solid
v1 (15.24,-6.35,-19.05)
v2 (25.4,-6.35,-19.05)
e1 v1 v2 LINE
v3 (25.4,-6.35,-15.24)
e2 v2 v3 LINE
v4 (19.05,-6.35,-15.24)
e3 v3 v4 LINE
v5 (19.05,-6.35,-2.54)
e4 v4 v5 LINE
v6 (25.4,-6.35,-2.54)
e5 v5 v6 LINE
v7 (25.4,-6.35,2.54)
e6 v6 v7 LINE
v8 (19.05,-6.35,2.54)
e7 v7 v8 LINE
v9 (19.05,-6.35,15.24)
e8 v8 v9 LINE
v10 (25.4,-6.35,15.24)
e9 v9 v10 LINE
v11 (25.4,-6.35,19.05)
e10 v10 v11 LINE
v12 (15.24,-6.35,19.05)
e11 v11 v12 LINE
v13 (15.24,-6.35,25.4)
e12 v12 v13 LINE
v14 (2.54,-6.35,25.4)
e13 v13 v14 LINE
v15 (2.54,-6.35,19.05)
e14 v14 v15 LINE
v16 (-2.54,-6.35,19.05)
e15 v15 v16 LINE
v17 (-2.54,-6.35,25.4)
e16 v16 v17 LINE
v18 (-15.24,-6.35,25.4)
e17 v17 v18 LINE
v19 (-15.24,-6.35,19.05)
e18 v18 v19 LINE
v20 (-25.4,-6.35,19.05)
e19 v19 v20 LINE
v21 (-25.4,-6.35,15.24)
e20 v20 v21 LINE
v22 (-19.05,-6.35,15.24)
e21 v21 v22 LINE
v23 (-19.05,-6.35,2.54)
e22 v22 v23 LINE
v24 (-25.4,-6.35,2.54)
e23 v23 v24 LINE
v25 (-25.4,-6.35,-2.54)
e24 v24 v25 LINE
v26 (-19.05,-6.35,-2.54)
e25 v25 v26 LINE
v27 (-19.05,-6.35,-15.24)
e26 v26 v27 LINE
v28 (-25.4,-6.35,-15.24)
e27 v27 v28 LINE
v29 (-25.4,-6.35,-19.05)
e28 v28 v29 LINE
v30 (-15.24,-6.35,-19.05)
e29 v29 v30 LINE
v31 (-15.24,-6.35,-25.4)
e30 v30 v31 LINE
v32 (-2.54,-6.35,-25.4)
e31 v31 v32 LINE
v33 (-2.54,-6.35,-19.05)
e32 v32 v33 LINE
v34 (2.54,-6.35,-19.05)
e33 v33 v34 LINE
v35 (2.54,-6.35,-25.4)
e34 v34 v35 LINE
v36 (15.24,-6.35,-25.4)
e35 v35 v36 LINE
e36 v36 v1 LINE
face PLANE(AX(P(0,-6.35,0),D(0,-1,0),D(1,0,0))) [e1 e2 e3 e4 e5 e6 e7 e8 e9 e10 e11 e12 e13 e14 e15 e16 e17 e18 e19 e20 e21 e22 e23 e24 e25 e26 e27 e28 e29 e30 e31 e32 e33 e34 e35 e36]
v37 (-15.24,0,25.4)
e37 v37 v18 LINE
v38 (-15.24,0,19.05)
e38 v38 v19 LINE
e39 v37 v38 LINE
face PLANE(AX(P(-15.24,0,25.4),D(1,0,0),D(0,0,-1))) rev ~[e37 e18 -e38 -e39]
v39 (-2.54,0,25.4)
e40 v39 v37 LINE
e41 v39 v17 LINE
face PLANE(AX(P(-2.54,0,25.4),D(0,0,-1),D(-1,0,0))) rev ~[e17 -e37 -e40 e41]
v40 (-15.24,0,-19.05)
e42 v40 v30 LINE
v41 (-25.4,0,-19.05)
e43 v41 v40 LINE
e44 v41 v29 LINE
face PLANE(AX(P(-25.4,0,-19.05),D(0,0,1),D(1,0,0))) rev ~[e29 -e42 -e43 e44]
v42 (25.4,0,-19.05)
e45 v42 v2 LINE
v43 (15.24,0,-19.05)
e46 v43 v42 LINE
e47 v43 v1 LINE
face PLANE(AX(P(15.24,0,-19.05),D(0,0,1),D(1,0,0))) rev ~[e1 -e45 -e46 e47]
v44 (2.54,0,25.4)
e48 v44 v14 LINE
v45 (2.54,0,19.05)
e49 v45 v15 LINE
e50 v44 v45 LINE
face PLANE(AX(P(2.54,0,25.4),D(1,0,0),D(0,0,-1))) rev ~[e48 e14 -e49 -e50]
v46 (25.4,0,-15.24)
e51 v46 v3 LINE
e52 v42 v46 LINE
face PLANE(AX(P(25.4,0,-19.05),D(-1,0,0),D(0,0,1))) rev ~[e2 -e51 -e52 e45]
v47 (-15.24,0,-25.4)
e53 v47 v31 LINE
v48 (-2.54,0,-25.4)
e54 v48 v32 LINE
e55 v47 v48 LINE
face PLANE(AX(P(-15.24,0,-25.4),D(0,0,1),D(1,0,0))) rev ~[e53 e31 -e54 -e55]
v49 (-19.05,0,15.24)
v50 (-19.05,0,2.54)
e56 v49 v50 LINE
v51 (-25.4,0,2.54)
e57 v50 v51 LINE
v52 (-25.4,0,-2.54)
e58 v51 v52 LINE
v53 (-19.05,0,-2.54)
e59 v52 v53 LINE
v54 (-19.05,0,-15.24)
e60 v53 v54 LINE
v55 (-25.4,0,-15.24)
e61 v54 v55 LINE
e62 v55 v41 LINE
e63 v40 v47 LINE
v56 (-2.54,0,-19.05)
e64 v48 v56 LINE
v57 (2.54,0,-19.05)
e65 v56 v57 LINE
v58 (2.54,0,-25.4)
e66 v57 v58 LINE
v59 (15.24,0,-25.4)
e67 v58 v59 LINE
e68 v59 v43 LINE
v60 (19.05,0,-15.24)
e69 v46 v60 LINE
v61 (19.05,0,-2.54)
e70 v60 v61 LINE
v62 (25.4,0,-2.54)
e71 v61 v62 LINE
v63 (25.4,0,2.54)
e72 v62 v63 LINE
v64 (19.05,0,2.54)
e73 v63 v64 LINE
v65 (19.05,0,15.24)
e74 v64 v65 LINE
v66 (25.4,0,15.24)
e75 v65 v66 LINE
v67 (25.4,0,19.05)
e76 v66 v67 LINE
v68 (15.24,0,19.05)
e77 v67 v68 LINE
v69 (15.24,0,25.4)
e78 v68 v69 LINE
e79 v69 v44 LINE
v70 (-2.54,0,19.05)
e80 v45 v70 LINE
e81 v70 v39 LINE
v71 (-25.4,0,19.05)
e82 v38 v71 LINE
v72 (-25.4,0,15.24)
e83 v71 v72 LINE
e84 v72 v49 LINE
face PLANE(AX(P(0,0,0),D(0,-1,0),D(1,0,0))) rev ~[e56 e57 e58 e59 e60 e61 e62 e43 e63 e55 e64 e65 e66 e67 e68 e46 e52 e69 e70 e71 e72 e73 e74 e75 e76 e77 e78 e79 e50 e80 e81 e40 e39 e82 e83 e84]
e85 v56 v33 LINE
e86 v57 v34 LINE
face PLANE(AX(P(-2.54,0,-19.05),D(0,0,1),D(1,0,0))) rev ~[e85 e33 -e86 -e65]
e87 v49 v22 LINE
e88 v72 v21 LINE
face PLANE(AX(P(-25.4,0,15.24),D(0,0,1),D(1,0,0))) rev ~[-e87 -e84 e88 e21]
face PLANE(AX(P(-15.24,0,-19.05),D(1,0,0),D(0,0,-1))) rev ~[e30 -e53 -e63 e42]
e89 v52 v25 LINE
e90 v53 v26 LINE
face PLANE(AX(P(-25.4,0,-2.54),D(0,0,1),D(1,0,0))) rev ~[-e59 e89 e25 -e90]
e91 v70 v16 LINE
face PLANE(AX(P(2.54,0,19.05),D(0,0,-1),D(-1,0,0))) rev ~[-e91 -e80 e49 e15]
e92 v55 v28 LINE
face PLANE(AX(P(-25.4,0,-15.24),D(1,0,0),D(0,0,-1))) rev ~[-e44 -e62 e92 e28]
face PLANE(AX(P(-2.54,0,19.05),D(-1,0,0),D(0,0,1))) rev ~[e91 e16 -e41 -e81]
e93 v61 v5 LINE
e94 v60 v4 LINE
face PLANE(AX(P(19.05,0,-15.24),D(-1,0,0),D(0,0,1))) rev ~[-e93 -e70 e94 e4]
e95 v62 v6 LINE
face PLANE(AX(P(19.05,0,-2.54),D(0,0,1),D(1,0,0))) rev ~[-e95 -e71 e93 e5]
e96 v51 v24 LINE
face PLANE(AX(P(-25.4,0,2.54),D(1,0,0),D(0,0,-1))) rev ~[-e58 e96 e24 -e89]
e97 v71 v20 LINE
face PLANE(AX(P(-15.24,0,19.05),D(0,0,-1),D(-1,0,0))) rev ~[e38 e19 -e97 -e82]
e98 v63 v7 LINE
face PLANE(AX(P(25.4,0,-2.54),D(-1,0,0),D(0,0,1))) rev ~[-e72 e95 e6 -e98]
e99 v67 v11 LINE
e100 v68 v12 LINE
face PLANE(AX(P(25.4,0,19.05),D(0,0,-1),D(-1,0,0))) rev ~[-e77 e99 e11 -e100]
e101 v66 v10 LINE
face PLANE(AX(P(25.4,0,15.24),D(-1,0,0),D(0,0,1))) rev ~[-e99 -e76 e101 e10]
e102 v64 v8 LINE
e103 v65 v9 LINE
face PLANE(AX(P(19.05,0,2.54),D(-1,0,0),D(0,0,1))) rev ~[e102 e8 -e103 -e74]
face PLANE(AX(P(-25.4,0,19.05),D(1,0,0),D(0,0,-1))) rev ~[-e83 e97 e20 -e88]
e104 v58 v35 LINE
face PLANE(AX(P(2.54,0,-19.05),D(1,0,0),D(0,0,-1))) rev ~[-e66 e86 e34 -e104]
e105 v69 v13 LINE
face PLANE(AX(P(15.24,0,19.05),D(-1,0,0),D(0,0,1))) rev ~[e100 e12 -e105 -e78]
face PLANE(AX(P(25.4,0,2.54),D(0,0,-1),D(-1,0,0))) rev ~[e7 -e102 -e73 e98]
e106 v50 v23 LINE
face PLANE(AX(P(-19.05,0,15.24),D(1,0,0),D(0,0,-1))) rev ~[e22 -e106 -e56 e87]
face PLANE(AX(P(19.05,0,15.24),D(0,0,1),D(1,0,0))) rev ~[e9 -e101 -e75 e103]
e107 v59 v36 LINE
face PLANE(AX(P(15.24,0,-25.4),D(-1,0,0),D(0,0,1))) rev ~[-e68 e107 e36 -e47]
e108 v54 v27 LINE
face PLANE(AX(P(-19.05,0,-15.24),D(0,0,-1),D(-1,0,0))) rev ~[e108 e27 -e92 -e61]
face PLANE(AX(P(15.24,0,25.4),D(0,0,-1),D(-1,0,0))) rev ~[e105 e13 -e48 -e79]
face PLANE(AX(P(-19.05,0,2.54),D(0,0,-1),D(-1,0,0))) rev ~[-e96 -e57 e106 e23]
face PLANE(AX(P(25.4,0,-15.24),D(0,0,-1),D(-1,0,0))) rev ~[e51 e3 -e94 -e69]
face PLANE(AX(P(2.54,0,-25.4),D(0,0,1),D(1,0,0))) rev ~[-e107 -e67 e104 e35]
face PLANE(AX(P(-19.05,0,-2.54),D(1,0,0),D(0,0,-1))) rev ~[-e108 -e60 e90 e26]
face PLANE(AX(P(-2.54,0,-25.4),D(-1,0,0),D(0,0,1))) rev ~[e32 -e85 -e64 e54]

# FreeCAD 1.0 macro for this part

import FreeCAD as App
import Part
import Sketcher

V = App.Vector
Q = App.Units.Quantity


def add_polygon(sketch, points):
    """Adds a closed chain of lines whose ends are joined by coincident constraints."""
    first, n = sketch.GeometryCount, len(points)
    for a, b in zip(points, points[1:] + points[:1]):
        sketch.addGeometry(Part.LineSegment(App.Vector(*a, 0), App.Vector(*b, 0)), False)
    for i in range(n):
        sketch.addConstraint(Sketcher.Constraint("Coincident", first + i, 2, first + (i + 1) % n, 1))

doc = App.newDocument("Part")
params = doc.addObject("Spreadsheet::Sheet", "Params")
for row, (alias, value) in enumerate([
    ("sketch1_width", "0.5 in"),
    ("sketch1_width2", "0.2 in"),
    ("sketch1_width3", "0.4 in"),
    ("sketch1_width4", "0.25 in"),
    ("pad1_length", "0.25 in"),
], start=1):
    params.set(f"A{row}", alias)
    params.set(f"B{row}", "=" + value)
    params.setAlias(f"B{row}", alias)

body = doc.addObject("PartDesign::Body", "Body")

# Sketch on XZ plane
sketch1 = doc.addObject("Sketcher::SketchObject", "Sketch")
body.addObject(sketch1)
sketch1.AttachmentSupport = (doc.XZ_Plane, [""])
sketch1.MapMode = "FlatFace"
add_polygon(sketch1, [(-15.24, -19.05), (-15.24, -25.4), (-2.54, -25.4), (-2.54, -19.05), (2.54, -19.05), (2.54, -25.4), (15.24, -25.4), (15.24, -19.05), (25.4, -19.05), (25.4, -15.24), (19.05, -15.24), (19.05, -2.54), (25.4, -2.54), (25.4, 2.54), (19.05, 2.54), (19.05, 15.24), (25.4, 15.24), (25.4, 19.05), (15.24, 19.05), (15.24, 25.4), (2.54, 25.4), (2.54, 19.05), (-2.54, 19.05), (-2.54, 25.4), (-15.24, 25.4), (-15.24, 19.05), (-25.4, 19.05), (-25.4, 15.24), (-19.05, 15.24), (-19.05, 2.54), (-25.4, 2.54), (-25.4, -2.54), (-19.05, -2.54), (-19.05, -15.24), (-25.4, -15.24), (-25.4, -19.05)])  # lines 0-35
sketch1.addConstraint(Sketcher.Constraint("Vertical", 0))
sketch1.addConstraint(Sketcher.Constraint("Horizontal", 1))
sketch1.addConstraint(Sketcher.Constraint("Vertical", 2))
sketch1.addConstraint(Sketcher.Constraint("Horizontal", 3))
sketch1.addConstraint(Sketcher.Constraint("Vertical", 4))
sketch1.addConstraint(Sketcher.Constraint("Horizontal", 5))
sketch1.addConstraint(Sketcher.Constraint("Vertical", 6))
sketch1.addConstraint(Sketcher.Constraint("Horizontal", 7))
sketch1.addConstraint(Sketcher.Constraint("Vertical", 8))
sketch1.addConstraint(Sketcher.Constraint("Horizontal", 9))
sketch1.addConstraint(Sketcher.Constraint("Vertical", 10))
sketch1.addConstraint(Sketcher.Constraint("Horizontal", 11))
sketch1.addConstraint(Sketcher.Constraint("Vertical", 12))
sketch1.addConstraint(Sketcher.Constraint("Horizontal", 13))
sketch1.addConstraint(Sketcher.Constraint("Vertical", 14))
sketch1.addConstraint(Sketcher.Constraint("Horizontal", 15))
sketch1.addConstraint(Sketcher.Constraint("Vertical", 16))
sketch1.addConstraint(Sketcher.Constraint("Horizontal", 17))
sketch1.addConstraint(Sketcher.Constraint("Vertical", 18))
sketch1.addConstraint(Sketcher.Constraint("Horizontal", 19))
sketch1.addConstraint(Sketcher.Constraint("Vertical", 20))
sketch1.addConstraint(Sketcher.Constraint("Horizontal", 21))
sketch1.addConstraint(Sketcher.Constraint("Vertical", 22))
sketch1.addConstraint(Sketcher.Constraint("Horizontal", 23))
sketch1.addConstraint(Sketcher.Constraint("Vertical", 24))
sketch1.addConstraint(Sketcher.Constraint("Horizontal", 25))
sketch1.addConstraint(Sketcher.Constraint("Vertical", 26))
sketch1.addConstraint(Sketcher.Constraint("Horizontal", 27))
sketch1.addConstraint(Sketcher.Constraint("Vertical", 28))
sketch1.addConstraint(Sketcher.Constraint("Horizontal", 29))
sketch1.addConstraint(Sketcher.Constraint("Vertical", 30))
sketch1.addConstraint(Sketcher.Constraint("Horizontal", 31))
sketch1.addConstraint(Sketcher.Constraint("Vertical", 32))
sketch1.addConstraint(Sketcher.Constraint("Horizontal", 33))
sketch1.addConstraint(Sketcher.Constraint("Vertical", 34))
sketch1.addConstraint(Sketcher.Constraint("Horizontal", 35))
sketch1.addConstraint(Sketcher.Constraint("Symmetric", 0, 2, 18, 2, -1, 1))
sketch1.addConstraint(Sketcher.Constraint("Symmetric", 2, 2, 20, 2, -1, 1))
sketch1.addConstraint(Sketcher.Constraint("Symmetric", 4, 2, 22, 2, -1, 1))
sketch1.addConstraint(Sketcher.Constraint("Symmetric", 6, 2, 24, 2, -1, 1))
sketch1.addConstraint(Sketcher.Constraint("Symmetric", 8, 2, 26, 2, -1, 1))
sketch1.addConstraint(Sketcher.Constraint("Symmetric", 10, 2, 28, 2, -1, 1))
sketch1.addConstraint(Sketcher.Constraint("Symmetric", 12, 2, 30, 2, -1, 1))
sketch1.addConstraint(Sketcher.Constraint("Symmetric", 14, 2, 32, 2, -1, 1))
sketch1.addConstraint(Sketcher.Constraint("Symmetric", 16, 2, 34, 2, -1, 1))
sketch1.addConstraint(Sketcher.Constraint("Symmetric", 1, 2, 4, 2, -2))
sketch1.addConstraint(Sketcher.Constraint("Symmetric", 17, 2, 24, 2, -2))
sketch1.addConstraint(Sketcher.Constraint("Symmetric", 15, 2, 26, 2, -2))
sketch1.addConstraint(Sketcher.Constraint("Symmetric", 13, 2, 28, 2, -2))
sketch1.addConstraint(Sketcher.Constraint("Horizontal", 3, 2, 6, 2))
sketch1.addConstraint(Sketcher.Constraint("Vertical", 8, 2, 11, 2))
sketch1.addConstraint(Sketcher.Constraint("Equal", 33, 0))
sketch1.addConstraint(Sketcher.Constraint("Equal", 23, 10))
sketch1.addConstraint(Sketcher.Constraint("Equal", 21, 12))
sketch1.addConstraint(Sketcher.Constraint("DistanceX", 1, 1, 1, 2, Q("0.5 in")))
sketch1.addConstraint(Sketcher.Constraint("DistanceX", 3, 1, 3, 2, Q("0.2 in")))
sketch1.addConstraint(Sketcher.Constraint("DistanceX", 7, 1, 7, 2, Q("0.4 in")))
sketch1.addConstraint(Sketcher.Constraint("DistanceY", 0, 2, -1, 1, Q("1 in")))
sketch1.addConstraint(Sketcher.Constraint("DistanceX", 9, 2, 9, 1, Q("0.25 in")))
sketch1.setExpression("Constraints[90]", "Params.sketch1_width")
sketch1.setExpression("Constraints[91]", "Params.sketch1_width2")
sketch1.setExpression("Constraints[92]", "Params.sketch1_width3")
sketch1.setExpression("Constraints[94]", "Params.sketch1_width4")
pad1 = doc.addObject("PartDesign::Pad", "Pad")
body.addObject(pad1)
pad1.Profile = sketch1
pad1.setExpression("Length", "Params.pad1_length")

doc.recompute()
